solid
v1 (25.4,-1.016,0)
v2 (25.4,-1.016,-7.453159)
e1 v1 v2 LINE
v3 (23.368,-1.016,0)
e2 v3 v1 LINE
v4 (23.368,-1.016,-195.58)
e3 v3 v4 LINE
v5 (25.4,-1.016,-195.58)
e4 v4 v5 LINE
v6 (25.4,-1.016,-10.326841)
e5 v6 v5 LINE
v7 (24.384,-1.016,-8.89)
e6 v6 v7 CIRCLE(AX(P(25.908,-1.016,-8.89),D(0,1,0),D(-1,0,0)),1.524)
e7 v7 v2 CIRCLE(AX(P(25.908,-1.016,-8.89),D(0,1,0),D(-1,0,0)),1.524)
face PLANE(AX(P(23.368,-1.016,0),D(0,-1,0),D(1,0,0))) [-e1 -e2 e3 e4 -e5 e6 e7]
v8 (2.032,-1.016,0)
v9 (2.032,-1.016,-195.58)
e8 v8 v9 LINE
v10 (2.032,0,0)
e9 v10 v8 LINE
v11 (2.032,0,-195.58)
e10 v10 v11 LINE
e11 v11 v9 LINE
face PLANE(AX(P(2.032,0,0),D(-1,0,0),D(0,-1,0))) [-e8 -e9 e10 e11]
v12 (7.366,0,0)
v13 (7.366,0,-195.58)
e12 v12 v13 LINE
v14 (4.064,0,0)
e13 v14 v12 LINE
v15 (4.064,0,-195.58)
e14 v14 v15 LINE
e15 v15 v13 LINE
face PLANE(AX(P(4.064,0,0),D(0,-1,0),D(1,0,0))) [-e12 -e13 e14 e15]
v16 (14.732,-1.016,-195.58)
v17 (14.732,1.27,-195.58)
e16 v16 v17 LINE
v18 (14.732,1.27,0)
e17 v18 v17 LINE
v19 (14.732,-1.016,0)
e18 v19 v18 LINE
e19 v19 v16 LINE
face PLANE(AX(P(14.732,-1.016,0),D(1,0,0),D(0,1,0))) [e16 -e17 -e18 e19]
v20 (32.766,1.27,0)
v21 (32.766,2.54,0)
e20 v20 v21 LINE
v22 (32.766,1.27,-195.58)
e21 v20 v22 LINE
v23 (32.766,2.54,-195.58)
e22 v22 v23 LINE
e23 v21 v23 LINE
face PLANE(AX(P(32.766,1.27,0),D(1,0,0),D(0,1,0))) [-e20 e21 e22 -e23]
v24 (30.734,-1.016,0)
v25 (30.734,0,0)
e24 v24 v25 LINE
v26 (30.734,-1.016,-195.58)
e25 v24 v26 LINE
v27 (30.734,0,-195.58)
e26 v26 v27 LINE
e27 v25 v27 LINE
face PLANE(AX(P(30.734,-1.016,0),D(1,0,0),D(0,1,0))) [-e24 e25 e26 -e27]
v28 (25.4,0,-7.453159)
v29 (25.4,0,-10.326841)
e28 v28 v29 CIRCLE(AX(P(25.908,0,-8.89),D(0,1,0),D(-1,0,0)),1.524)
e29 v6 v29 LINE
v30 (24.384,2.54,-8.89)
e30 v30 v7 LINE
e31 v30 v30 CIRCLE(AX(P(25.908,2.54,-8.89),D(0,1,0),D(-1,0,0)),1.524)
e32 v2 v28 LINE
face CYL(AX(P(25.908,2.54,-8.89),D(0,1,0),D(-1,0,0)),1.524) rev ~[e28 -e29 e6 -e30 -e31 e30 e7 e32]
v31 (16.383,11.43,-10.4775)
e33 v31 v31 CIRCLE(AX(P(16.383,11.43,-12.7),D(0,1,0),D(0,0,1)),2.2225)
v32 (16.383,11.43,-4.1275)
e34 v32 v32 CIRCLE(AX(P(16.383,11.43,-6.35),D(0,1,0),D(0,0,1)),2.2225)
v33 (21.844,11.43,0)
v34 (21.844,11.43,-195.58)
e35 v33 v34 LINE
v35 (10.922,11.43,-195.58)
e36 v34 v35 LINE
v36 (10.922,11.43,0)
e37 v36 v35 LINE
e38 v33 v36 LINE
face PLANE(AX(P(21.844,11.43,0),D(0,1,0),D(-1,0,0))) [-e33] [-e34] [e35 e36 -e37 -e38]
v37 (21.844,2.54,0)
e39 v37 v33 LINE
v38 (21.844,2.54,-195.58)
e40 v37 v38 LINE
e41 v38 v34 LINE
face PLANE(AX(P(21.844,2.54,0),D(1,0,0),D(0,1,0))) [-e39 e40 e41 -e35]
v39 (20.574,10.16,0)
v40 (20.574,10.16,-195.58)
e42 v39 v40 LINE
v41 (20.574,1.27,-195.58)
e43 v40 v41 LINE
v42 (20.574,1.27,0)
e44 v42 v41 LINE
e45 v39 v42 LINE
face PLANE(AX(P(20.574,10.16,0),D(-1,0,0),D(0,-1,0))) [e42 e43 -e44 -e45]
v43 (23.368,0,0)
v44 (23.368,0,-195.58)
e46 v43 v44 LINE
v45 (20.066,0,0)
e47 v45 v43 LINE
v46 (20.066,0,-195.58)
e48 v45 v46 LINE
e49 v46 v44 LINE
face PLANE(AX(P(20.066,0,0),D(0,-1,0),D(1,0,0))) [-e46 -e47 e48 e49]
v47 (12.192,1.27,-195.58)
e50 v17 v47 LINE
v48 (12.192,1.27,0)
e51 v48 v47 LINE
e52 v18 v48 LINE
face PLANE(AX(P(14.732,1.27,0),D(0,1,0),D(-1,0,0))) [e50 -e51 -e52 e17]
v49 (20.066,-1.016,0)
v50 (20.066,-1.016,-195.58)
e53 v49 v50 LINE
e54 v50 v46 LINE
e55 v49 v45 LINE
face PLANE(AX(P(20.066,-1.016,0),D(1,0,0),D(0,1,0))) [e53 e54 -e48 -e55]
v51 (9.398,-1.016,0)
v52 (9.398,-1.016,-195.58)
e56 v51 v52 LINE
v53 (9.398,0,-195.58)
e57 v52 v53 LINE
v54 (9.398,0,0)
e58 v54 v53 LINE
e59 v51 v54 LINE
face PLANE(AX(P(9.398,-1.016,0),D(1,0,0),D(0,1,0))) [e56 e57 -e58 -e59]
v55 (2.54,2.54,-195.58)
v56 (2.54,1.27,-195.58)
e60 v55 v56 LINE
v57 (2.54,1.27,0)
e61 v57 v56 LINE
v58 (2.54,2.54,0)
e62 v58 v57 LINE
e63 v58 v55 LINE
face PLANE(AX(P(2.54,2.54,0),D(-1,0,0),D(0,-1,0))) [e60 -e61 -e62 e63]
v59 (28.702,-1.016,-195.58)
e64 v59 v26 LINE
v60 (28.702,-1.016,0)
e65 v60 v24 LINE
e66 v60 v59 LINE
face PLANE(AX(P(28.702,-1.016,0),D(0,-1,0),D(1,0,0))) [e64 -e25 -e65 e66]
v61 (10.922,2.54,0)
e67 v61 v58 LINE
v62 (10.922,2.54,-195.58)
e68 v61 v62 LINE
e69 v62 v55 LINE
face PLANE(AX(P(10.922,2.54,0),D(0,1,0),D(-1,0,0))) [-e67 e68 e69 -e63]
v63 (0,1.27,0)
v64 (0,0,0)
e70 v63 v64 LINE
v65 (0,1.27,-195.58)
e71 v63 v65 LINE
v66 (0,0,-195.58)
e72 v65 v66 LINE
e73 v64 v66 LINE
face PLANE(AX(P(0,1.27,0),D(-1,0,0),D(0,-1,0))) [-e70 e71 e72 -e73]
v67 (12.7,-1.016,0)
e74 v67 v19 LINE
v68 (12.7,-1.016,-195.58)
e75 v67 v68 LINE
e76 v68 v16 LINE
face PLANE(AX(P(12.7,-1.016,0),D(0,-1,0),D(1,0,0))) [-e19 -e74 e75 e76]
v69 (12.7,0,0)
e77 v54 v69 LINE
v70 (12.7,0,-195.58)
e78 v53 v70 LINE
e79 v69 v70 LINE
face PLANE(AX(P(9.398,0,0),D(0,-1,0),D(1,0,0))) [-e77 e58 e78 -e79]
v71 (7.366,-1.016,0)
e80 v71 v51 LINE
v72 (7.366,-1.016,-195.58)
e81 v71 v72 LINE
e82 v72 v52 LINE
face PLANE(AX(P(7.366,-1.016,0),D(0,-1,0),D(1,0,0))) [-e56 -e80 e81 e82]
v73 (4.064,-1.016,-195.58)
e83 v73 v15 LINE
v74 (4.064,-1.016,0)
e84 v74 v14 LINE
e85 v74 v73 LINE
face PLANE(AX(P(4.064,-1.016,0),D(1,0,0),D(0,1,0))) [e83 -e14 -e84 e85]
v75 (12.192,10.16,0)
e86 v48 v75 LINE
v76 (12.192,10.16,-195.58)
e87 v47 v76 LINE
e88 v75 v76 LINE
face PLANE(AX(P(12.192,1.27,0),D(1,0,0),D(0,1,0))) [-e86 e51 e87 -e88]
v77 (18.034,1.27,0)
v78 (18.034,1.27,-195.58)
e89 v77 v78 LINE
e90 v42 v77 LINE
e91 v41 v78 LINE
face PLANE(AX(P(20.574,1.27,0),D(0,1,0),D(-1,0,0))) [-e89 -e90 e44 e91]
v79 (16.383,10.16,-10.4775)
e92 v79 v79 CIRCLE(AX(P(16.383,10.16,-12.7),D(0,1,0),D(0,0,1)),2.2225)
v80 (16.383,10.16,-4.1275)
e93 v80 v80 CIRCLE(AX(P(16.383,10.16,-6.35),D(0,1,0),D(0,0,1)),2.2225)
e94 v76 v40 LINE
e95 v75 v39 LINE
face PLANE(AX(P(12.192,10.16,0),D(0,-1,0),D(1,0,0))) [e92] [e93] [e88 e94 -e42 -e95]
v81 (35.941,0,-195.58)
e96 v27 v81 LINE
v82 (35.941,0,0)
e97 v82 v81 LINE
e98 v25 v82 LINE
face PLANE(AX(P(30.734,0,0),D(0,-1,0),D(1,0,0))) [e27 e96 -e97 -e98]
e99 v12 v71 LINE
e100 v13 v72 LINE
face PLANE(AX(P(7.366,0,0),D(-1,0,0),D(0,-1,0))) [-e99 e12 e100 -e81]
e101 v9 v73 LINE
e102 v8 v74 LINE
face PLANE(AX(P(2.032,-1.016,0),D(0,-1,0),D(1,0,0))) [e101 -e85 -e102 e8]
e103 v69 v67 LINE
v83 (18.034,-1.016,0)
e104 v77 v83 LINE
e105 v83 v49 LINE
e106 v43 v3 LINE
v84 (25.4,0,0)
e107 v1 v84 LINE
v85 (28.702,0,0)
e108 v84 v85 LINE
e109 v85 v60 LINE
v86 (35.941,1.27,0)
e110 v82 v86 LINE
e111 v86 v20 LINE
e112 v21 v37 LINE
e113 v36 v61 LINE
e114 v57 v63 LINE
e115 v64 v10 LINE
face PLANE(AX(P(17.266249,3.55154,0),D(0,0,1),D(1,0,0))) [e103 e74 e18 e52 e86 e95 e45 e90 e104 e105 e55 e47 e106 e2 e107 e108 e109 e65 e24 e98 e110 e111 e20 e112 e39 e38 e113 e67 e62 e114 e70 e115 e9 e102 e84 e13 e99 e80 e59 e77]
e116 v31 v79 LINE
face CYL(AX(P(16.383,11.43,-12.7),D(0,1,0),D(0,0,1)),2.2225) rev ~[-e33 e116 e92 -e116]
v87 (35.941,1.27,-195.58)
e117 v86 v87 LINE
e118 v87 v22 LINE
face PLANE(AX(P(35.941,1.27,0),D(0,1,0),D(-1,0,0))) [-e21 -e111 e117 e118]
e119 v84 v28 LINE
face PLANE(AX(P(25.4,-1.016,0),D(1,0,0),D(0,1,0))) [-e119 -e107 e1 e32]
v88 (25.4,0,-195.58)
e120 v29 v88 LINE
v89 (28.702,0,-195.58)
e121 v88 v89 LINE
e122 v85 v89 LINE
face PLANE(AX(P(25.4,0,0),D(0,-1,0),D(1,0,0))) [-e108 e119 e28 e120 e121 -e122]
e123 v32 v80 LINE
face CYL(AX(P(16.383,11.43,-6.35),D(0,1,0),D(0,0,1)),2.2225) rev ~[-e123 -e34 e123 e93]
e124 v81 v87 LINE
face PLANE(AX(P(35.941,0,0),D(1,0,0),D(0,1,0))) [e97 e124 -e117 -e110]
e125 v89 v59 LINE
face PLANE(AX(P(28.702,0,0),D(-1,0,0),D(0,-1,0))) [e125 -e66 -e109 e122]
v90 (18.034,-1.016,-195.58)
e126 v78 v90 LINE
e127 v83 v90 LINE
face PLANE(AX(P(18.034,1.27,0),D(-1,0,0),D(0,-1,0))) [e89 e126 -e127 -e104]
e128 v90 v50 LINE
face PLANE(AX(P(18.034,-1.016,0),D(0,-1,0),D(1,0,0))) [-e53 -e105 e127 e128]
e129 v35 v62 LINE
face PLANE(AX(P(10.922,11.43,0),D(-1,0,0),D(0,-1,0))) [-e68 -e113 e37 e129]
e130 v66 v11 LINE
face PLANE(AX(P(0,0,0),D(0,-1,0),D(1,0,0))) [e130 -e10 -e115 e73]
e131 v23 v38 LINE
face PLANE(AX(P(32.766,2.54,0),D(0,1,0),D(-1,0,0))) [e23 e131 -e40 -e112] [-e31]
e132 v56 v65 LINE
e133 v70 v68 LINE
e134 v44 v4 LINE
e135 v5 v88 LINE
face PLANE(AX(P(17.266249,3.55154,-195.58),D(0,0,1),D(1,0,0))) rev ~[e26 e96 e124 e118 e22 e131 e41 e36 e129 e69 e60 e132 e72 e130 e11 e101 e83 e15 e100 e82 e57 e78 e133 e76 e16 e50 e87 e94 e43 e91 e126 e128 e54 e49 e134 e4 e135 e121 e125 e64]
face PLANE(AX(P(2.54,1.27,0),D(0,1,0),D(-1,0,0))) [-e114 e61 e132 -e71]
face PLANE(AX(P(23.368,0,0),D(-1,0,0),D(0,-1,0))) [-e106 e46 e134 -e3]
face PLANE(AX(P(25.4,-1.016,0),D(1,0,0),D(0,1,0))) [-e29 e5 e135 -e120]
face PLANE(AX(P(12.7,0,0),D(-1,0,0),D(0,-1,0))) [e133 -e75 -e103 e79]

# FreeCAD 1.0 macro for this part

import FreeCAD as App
import Part
import Sketcher
Q = App.Units.Quantity

doc = App.newDocument("Part")
params = doc.addObject("Spreadsheet::Sheet", "Params")
for row, (alias, value) in enumerate([
    ("sketch1_width", "0.1 in"),
    ("sketch1_width2", "0.08 in"),
    ("sketch1_width3", "0.13 in"),
    ("sketch1_width4", "0.43 in"),
    ("sketch1_height", "0.04 in"),
    ("pad1_length", "7.7 in"),
    ("sketch2_diameter", "0.175 in"),
    ("sketch3_diameter", "0.175 in"),
    ("sketch4_diameter", "0.12 in"),
], start=1):
    params.set(f"A{row}", alias)
    params.set(f"B{row}", "=" + value)
    params.setAlias(f"B{row}", alias)

body = doc.addObject("PartDesign::Body", "Body")

sketch1 = doc.addObject("Sketcher::SketchObject", "Sketch")
body.addObject(sketch1)
sketch1.AttachmentSupport = (doc.XY_Plane, [""])
sketch1.MapMode = "FlatFace"
sketch1.addGeometry([
    Part.LineSegment(App.Vector(0, 0, 0), App.Vector(2, 0, 0)),
    Part.LineSegment(App.Vector(2, 0, 0), App.Vector(2, -1, 0)),
    Part.LineSegment(App.Vector(2, -1, 0), App.Vector(4.1, -1, 0)),
    Part.LineSegment(App.Vector(4.1, -1, 0), App.Vector(4.1, 0, 0)),
    Part.LineSegment(App.Vector(4.1, 0, 0), App.Vector(7.4, 0, 0)),
    Part.LineSegment(App.Vector(7.4, 0, 0), App.Vector(7.4, -1, 0)),
    Part.LineSegment(App.Vector(7.4, -1, 0), App.Vector(9.4, -1, 0)),
    Part.LineSegment(App.Vector(9.4, -1, 0), App.Vector(9.4, 0, 0)),
    Part.LineSegment(App.Vector(9.4, 0, 0), App.Vector(12.7, 0, 0)),
    Part.LineSegment(App.Vector(12.7, 0, 0), App.Vector(12.7, -1, 0)),
    Part.LineSegment(App.Vector(12.7, -1, 0), App.Vector(14.7, -1, 0)),
    Part.LineSegment(App.Vector(14.7, -1, 0), App.Vector(14.7, 1.3, 0)),
    Part.LineSegment(App.Vector(14.7, 1.3, 0), App.Vector(12.2, 1.3, 0)),
    Part.LineSegment(App.Vector(12.2, 1.3, 0), App.Vector(12.2, 10.2, 0)),
    Part.LineSegment(App.Vector(12.2, 10.2, 0), App.Vector(20.6, 10.2, 0)),
    Part.LineSegment(App.Vector(20.6, 10.2, 0), App.Vector(20.6, 1.3, 0)),
    Part.LineSegment(App.Vector(20.6, 1.3, 0), App.Vector(18, 1.3, 0)),
    Part.LineSegment(App.Vector(18, 1.3, 0), App.Vector(18, -1, 0)),
    Part.LineSegment(App.Vector(18, -1, 0), App.Vector(20.1, -1, 0)),
    Part.LineSegment(App.Vector(20.1, -1, 0), App.Vector(20.1, 0, 0)),
    Part.LineSegment(App.Vector(20.1, 0, 0), App.Vector(23.4, 0, 0)),
    Part.LineSegment(App.Vector(23.4, 0, 0), App.Vector(23.4, -1, 0)),
    Part.LineSegment(App.Vector(23.4, -1, 0), App.Vector(25.4, -1, 0)),
    Part.LineSegment(App.Vector(25.4, -1, 0), App.Vector(25.4, 0, 0)),
    Part.LineSegment(App.Vector(25.4, 0, 0), App.Vector(28.7, 0, 0)),
    Part.LineSegment(App.Vector(28.7, 0, 0), App.Vector(28.7, -1, 0)),
    Part.LineSegment(App.Vector(28.7, -1, 0), App.Vector(30.7, -1, 0)),
    Part.LineSegment(App.Vector(30.7, -1, 0), App.Vector(30.7, 0, 0)),
    Part.LineSegment(App.Vector(30.7, 0, 0), App.Vector(35.9, 0, 0)),
    Part.LineSegment(App.Vector(35.9, 0, 0), App.Vector(35.9, 1.3, 0)),
    Part.LineSegment(App.Vector(35.9, 1.3, 0), App.Vector(32.8, 1.3, 0)),
    Part.LineSegment(App.Vector(32.8, 1.3, 0), App.Vector(32.8, 2.5, 0)),
    Part.LineSegment(App.Vector(32.8, 2.5, 0), App.Vector(21.8, 2.5, 0)),
    Part.LineSegment(App.Vector(21.8, 2.5, 0), App.Vector(21.8, 11.4, 0)),
    Part.LineSegment(App.Vector(21.8, 11.4, 0), App.Vector(10.9, 11.4, 0)),
    Part.LineSegment(App.Vector(10.9, 11.4, 0), App.Vector(10.9, 2.5, 0)),
    Part.LineSegment(App.Vector(10.9, 2.5, 0), App.Vector(2.5, 2.5, 0)),
    Part.LineSegment(App.Vector(2.5, 2.5, 0), App.Vector(2.5, 1.3, 0)),
    Part.LineSegment(App.Vector(2.5, 1.3, 0), App.Vector(0, 1.3, 0)),
    Part.LineSegment(App.Vector(0, 1.3, 0), App.Vector(0, 0, 0)),
], False)
sketch1.addConstraint([
    Sketcher.Constraint("Coincident", 0, 2, 1, 1),
    Sketcher.Constraint("Coincident", 1, 2, 2, 1),
    Sketcher.Constraint("Coincident", 2, 2, 3, 1),
    Sketcher.Constraint("Coincident", 3, 2, 4, 1),
    Sketcher.Constraint("Coincident", 4, 2, 5, 1),
    Sketcher.Constraint("Coincident", 5, 2, 6, 1),
    Sketcher.Constraint("Coincident", 6, 2, 7, 1),
    Sketcher.Constraint("Coincident", 7, 2, 8, 1),
    Sketcher.Constraint("Coincident", 8, 2, 9, 1),
    Sketcher.Constraint("Coincident", 9, 2, 10, 1),
    Sketcher.Constraint("Coincident", 10, 2, 11, 1),
    Sketcher.Constraint("Coincident", 11, 2, 12, 1),
    Sketcher.Constraint("Coincident", 12, 2, 13, 1),
    Sketcher.Constraint("Coincident", 13, 2, 14, 1),
    Sketcher.Constraint("Coincident", 14, 2, 15, 1),
    Sketcher.Constraint("Coincident", 15, 2, 16, 1),
    Sketcher.Constraint("Coincident", 16, 2, 17, 1),
    Sketcher.Constraint("Coincident", 17, 2, 18, 1),
    Sketcher.Constraint("Coincident", 18, 2, 19, 1),
    Sketcher.Constraint("Coincident", 19, 2, 20, 1),
    Sketcher.Constraint("Coincident", 20, 2, 21, 1),
    Sketcher.Constraint("Coincident", 21, 2, 22, 1),
    Sketcher.Constraint("Coincident", 22, 2, 23, 1),
    Sketcher.Constraint("Coincident", 23, 2, 24, 1),
    Sketcher.Constraint("Coincident", 24, 2, 25, 1),
    Sketcher.Constraint("Coincident", 25, 2, 26, 1),
    Sketcher.Constraint("Coincident", 26, 2, 27, 1),
    Sketcher.Constraint("Coincident", 27, 2, 28, 1),
    Sketcher.Constraint("Coincident", 28, 2, 29, 1),
    Sketcher.Constraint("Coincident", 29, 2, 30, 1),
    Sketcher.Constraint("Coincident", 30, 2, 31, 1),
    Sketcher.Constraint("Coincident", 31, 2, 32, 1),
    Sketcher.Constraint("Coincident", 32, 2, 33, 1),
    Sketcher.Constraint("Coincident", 33, 2, 34, 1),
    Sketcher.Constraint("Coincident", 34, 2, 35, 1),
    Sketcher.Constraint("Coincident", 35, 2, 36, 1),
    Sketcher.Constraint("Coincident", 36, 2, 37, 1),
    Sketcher.Constraint("Coincident", 37, 2, 38, 1),
    Sketcher.Constraint("Coincident", 38, 2, 39, 1),
    Sketcher.Constraint("Coincident", 39, 2, 0, 1),
    Sketcher.Constraint("Horizontal", 0),
    Sketcher.Constraint("Vertical", 1),
    Sketcher.Constraint("Horizontal", 2),
    Sketcher.Constraint("Vertical", 3),
    Sketcher.Constraint("Horizontal", 4),
    Sketcher.Constraint("Vertical", 5),
    Sketcher.Constraint("Horizontal", 6),
    Sketcher.Constraint("Vertical", 7),
    Sketcher.Constraint("Horizontal", 8),
    Sketcher.Constraint("Vertical", 9),
    Sketcher.Constraint("Horizontal", 10),
    Sketcher.Constraint("Vertical", 11),
    Sketcher.Constraint("Horizontal", 12),
    Sketcher.Constraint("Vertical", 13),
    Sketcher.Constraint("Horizontal", 14),
    Sketcher.Constraint("Vertical", 15),
    Sketcher.Constraint("Horizontal", 16),
    Sketcher.Constraint("Vertical", 17),
    Sketcher.Constraint("Horizontal", 18),
    Sketcher.Constraint("Vertical", 19),
    Sketcher.Constraint("Horizontal", 20),
    Sketcher.Constraint("Vertical", 21),
    Sketcher.Constraint("Horizontal", 22),
    Sketcher.Constraint("Vertical", 23),
    Sketcher.Constraint("Horizontal", 24),
    Sketcher.Constraint("Vertical", 25),
    Sketcher.Constraint("Horizontal", 26),
    Sketcher.Constraint("Vertical", 27),
    Sketcher.Constraint("Horizontal", 28),
    Sketcher.Constraint("Vertical", 29),
    Sketcher.Constraint("Horizontal", 30),
    Sketcher.Constraint("Vertical", 31),
    Sketcher.Constraint("Horizontal", 32),
    Sketcher.Constraint("Vertical", 33),
    Sketcher.Constraint("Horizontal", 34),
    Sketcher.Constraint("Vertical", 35),
    Sketcher.Constraint("Horizontal", 36),
    Sketcher.Constraint("Vertical", 37),
    Sketcher.Constraint("Horizontal", 38),
    Sketcher.Constraint("Vertical", 39),
    Sketcher.Constraint("Coincident", 39, 2, -1, 1),
    Sketcher.Constraint("PointOnObject", 3, 2, -1),
    Sketcher.Constraint("PointOnObject", 7, 2, -1),
    Sketcher.Constraint("PointOnObject", 19, 2, -1),
    Sketcher.Constraint("PointOnObject", 23, 2, -1),
    Sketcher.Constraint("PointOnObject", 27, 2, -1),
    Sketcher.Constraint("Horizontal", 2, 2, 5, 2),
    Sketcher.Constraint("Horizontal", 6, 2, 9, 2),
    Sketcher.Constraint("Horizontal", 12, 2, 15, 2),
    Sketcher.Constraint("Horizontal", 10, 2, 17, 2),
    Sketcher.Constraint("Horizontal", 18, 2, 21, 2),
    Sketcher.Constraint("Horizontal", 22, 2, 25, 2),
    Sketcher.Constraint("Horizontal", 16, 2, 29, 2),
    Sketcher.Constraint("Horizontal", 32, 2, 35, 2),
    Sketcher.Constraint("Horizontal", 30, 2, 37, 2),
    Sketcher.Constraint("Equal", 0, 2),
    Sketcher.Constraint("Equal", 2, 6),
    Sketcher.Constraint("Equal", 4, 8),
    Sketcher.Constraint("Equal", 6, 10),
    Sketcher.Constraint("Equal", 12, 16),
    Sketcher.Constraint("Equal", 10, 18),
    Sketcher.Constraint("Equal", 8, 20),
    Sketcher.Constraint("Equal", 18, 22),
    Sketcher.Constraint("Equal", 20, 24),
    Sketcher.Constraint("Equal", 22, 26),
    Sketcher.Constraint("Equal", 32, 34),
    Sketcher.Constraint("Equal", 14, 36),
    Sketcher.Constraint("Equal", 16, 38),
    Sketcher.Constraint("Equal", 29, 31),
    Sketcher.Constraint("Equal", 15, 33),
    Sketcher.Constraint("DistanceX", 12, 2, 12, 1, Q("0.1 in")),
    Sketcher.Constraint("DistanceX", -1, 1, 22, 2, Q("1 in")),
    Sketcher.Constraint("DistanceX", 0, 1, 0, 2, Q("0.08 in")),
    Sketcher.Constraint("DistanceX", 4, 1, 4, 2, Q("0.13 in")),
    Sketcher.Constraint("DistanceX", 32, 2, 32, 1, Q("0.43 in")),
    Sketcher.Constraint("DistanceY", 1, 2, 1, 1, Q("0.04 in")),
    Sketcher.Constraint("DistanceY", 11, 1, 11, 2, Q("0.09 in")),
    Sketcher.Constraint("DistanceY", 13, 1, 13, 2, Q("0.35 in")),
    Sketcher.Constraint("DistanceX", 28, 1, 28, 2, Q("0.205 in")),
])
sketch1.setExpression("Constraints[110]", "Params.sketch1_width")
sketch1.setExpression("Constraints[112]", "Params.sketch1_width2")
sketch1.setExpression("Constraints[113]", "Params.sketch1_width3")
sketch1.setExpression("Constraints[114]", "Params.sketch1_width4")
sketch1.setExpression("Constraints[115]", "Params.sketch1_height")
pad1 = doc.addObject("PartDesign::Pad", "Pad")
body.addObject(pad1)
pad1.Profile = sketch1
pad1.setExpression("Length", "Params.pad1_length")
pad1.Reversed = True

sketch2 = doc.addObject("Sketcher::SketchObject", "Sketch001")
body.addObject(sketch2)
sketch2.AttachmentSupport = (doc.XZ_Plane, [""])
sketch2.MapMode = "FlatFace"
sketch2.AttachmentOffset = App.Placement(App.Vector(0, 0, -0.45 * 25.4), App.Rotation())
sketch2.addGeometry(Part.Circle(App.Vector(16.4, -6.3, 0), App.Vector(0, 0, 1), 2.2), False)
sketch2.addConstraint([
    Sketcher.Constraint("Diameter", 0, Q("0.175 in")),
    Sketcher.Constraint("DistanceY", 0, 3, -1, 1, Q("0.25 in")),
    Sketcher.Constraint("DistanceX", -1, 1, 0, 3, Q("0.645 in")),
])
sketch2.setExpression("Constraints[0]", "Params.sketch2_diameter")
pocket1 = doc.addObject("PartDesign::Pocket", "Pocket")
body.addObject(pocket1)
pocket1.Profile = sketch2
pocket1.Type = "UpToFirst"
pocket1.Reversed = True

sketch3 = doc.addObject("Sketcher::SketchObject", "Sketch002")
body.addObject(sketch3)
sketch3.AttachmentSupport = (doc.XZ_Plane, [""])
sketch3.MapMode = "FlatFace"
sketch3.AttachmentOffset = App.Placement(App.Vector(0, 0, -0.45 * 25.4), App.Rotation())
sketch3.addGeometry(Part.Circle(App.Vector(16.4, -12.7, 0), App.Vector(0, 0, 1), 2.2), False)
sketch3.addConstraint([
    Sketcher.Constraint("Diameter", 0, Q("0.175 in")),
    Sketcher.Constraint("DistanceY", 0, 3, -1, 1, Q("0.5 in")),
    Sketcher.Constraint("DistanceX", -1, 1, 0, 3, Q("0.645 in")),
])
sketch3.setExpression("Constraints[0]", "Params.sketch3_diameter")
pocket2 = doc.addObject("PartDesign::Pocket", "Pocket001")
body.addObject(pocket2)
pocket2.Profile = sketch3
pocket2.Type = "UpToFirst"
pocket2.Reversed = True

sketch4 = doc.addObject("Sketcher::SketchObject", "Sketch003")
body.addObject(sketch4)
sketch4.AttachmentSupport = (doc.XZ_Plane, [""])
sketch4.MapMode = "FlatFace"
sketch4.AttachmentOffset = App.Placement(App.Vector(0, 0, -0.1 * 25.4), App.Rotation())
sketch4.addGeometry(Part.Circle(App.Vector(25.9, -8.9, 0), App.Vector(0, 0, 1), 1.5), False)
sketch4.addConstraint([
    Sketcher.Constraint("Diameter", 0, Q("0.12 in")),
    Sketcher.Constraint("DistanceX", -1, 1, 0, 3, Q("1.02 in")),
    Sketcher.Constraint("DistanceY", 0, 3, -1, 1, Q("0.35 in")),
])
sketch4.setExpression("Constraints[0]", "Params.sketch4_diameter")
pocket3 = doc.addObject("PartDesign::Pocket", "Pocket002")
body.addObject(pocket3)
pocket3.Profile = sketch4
pocket3.Type = "ThroughAll"
pocket3.Reversed = True

doc.recompute()
